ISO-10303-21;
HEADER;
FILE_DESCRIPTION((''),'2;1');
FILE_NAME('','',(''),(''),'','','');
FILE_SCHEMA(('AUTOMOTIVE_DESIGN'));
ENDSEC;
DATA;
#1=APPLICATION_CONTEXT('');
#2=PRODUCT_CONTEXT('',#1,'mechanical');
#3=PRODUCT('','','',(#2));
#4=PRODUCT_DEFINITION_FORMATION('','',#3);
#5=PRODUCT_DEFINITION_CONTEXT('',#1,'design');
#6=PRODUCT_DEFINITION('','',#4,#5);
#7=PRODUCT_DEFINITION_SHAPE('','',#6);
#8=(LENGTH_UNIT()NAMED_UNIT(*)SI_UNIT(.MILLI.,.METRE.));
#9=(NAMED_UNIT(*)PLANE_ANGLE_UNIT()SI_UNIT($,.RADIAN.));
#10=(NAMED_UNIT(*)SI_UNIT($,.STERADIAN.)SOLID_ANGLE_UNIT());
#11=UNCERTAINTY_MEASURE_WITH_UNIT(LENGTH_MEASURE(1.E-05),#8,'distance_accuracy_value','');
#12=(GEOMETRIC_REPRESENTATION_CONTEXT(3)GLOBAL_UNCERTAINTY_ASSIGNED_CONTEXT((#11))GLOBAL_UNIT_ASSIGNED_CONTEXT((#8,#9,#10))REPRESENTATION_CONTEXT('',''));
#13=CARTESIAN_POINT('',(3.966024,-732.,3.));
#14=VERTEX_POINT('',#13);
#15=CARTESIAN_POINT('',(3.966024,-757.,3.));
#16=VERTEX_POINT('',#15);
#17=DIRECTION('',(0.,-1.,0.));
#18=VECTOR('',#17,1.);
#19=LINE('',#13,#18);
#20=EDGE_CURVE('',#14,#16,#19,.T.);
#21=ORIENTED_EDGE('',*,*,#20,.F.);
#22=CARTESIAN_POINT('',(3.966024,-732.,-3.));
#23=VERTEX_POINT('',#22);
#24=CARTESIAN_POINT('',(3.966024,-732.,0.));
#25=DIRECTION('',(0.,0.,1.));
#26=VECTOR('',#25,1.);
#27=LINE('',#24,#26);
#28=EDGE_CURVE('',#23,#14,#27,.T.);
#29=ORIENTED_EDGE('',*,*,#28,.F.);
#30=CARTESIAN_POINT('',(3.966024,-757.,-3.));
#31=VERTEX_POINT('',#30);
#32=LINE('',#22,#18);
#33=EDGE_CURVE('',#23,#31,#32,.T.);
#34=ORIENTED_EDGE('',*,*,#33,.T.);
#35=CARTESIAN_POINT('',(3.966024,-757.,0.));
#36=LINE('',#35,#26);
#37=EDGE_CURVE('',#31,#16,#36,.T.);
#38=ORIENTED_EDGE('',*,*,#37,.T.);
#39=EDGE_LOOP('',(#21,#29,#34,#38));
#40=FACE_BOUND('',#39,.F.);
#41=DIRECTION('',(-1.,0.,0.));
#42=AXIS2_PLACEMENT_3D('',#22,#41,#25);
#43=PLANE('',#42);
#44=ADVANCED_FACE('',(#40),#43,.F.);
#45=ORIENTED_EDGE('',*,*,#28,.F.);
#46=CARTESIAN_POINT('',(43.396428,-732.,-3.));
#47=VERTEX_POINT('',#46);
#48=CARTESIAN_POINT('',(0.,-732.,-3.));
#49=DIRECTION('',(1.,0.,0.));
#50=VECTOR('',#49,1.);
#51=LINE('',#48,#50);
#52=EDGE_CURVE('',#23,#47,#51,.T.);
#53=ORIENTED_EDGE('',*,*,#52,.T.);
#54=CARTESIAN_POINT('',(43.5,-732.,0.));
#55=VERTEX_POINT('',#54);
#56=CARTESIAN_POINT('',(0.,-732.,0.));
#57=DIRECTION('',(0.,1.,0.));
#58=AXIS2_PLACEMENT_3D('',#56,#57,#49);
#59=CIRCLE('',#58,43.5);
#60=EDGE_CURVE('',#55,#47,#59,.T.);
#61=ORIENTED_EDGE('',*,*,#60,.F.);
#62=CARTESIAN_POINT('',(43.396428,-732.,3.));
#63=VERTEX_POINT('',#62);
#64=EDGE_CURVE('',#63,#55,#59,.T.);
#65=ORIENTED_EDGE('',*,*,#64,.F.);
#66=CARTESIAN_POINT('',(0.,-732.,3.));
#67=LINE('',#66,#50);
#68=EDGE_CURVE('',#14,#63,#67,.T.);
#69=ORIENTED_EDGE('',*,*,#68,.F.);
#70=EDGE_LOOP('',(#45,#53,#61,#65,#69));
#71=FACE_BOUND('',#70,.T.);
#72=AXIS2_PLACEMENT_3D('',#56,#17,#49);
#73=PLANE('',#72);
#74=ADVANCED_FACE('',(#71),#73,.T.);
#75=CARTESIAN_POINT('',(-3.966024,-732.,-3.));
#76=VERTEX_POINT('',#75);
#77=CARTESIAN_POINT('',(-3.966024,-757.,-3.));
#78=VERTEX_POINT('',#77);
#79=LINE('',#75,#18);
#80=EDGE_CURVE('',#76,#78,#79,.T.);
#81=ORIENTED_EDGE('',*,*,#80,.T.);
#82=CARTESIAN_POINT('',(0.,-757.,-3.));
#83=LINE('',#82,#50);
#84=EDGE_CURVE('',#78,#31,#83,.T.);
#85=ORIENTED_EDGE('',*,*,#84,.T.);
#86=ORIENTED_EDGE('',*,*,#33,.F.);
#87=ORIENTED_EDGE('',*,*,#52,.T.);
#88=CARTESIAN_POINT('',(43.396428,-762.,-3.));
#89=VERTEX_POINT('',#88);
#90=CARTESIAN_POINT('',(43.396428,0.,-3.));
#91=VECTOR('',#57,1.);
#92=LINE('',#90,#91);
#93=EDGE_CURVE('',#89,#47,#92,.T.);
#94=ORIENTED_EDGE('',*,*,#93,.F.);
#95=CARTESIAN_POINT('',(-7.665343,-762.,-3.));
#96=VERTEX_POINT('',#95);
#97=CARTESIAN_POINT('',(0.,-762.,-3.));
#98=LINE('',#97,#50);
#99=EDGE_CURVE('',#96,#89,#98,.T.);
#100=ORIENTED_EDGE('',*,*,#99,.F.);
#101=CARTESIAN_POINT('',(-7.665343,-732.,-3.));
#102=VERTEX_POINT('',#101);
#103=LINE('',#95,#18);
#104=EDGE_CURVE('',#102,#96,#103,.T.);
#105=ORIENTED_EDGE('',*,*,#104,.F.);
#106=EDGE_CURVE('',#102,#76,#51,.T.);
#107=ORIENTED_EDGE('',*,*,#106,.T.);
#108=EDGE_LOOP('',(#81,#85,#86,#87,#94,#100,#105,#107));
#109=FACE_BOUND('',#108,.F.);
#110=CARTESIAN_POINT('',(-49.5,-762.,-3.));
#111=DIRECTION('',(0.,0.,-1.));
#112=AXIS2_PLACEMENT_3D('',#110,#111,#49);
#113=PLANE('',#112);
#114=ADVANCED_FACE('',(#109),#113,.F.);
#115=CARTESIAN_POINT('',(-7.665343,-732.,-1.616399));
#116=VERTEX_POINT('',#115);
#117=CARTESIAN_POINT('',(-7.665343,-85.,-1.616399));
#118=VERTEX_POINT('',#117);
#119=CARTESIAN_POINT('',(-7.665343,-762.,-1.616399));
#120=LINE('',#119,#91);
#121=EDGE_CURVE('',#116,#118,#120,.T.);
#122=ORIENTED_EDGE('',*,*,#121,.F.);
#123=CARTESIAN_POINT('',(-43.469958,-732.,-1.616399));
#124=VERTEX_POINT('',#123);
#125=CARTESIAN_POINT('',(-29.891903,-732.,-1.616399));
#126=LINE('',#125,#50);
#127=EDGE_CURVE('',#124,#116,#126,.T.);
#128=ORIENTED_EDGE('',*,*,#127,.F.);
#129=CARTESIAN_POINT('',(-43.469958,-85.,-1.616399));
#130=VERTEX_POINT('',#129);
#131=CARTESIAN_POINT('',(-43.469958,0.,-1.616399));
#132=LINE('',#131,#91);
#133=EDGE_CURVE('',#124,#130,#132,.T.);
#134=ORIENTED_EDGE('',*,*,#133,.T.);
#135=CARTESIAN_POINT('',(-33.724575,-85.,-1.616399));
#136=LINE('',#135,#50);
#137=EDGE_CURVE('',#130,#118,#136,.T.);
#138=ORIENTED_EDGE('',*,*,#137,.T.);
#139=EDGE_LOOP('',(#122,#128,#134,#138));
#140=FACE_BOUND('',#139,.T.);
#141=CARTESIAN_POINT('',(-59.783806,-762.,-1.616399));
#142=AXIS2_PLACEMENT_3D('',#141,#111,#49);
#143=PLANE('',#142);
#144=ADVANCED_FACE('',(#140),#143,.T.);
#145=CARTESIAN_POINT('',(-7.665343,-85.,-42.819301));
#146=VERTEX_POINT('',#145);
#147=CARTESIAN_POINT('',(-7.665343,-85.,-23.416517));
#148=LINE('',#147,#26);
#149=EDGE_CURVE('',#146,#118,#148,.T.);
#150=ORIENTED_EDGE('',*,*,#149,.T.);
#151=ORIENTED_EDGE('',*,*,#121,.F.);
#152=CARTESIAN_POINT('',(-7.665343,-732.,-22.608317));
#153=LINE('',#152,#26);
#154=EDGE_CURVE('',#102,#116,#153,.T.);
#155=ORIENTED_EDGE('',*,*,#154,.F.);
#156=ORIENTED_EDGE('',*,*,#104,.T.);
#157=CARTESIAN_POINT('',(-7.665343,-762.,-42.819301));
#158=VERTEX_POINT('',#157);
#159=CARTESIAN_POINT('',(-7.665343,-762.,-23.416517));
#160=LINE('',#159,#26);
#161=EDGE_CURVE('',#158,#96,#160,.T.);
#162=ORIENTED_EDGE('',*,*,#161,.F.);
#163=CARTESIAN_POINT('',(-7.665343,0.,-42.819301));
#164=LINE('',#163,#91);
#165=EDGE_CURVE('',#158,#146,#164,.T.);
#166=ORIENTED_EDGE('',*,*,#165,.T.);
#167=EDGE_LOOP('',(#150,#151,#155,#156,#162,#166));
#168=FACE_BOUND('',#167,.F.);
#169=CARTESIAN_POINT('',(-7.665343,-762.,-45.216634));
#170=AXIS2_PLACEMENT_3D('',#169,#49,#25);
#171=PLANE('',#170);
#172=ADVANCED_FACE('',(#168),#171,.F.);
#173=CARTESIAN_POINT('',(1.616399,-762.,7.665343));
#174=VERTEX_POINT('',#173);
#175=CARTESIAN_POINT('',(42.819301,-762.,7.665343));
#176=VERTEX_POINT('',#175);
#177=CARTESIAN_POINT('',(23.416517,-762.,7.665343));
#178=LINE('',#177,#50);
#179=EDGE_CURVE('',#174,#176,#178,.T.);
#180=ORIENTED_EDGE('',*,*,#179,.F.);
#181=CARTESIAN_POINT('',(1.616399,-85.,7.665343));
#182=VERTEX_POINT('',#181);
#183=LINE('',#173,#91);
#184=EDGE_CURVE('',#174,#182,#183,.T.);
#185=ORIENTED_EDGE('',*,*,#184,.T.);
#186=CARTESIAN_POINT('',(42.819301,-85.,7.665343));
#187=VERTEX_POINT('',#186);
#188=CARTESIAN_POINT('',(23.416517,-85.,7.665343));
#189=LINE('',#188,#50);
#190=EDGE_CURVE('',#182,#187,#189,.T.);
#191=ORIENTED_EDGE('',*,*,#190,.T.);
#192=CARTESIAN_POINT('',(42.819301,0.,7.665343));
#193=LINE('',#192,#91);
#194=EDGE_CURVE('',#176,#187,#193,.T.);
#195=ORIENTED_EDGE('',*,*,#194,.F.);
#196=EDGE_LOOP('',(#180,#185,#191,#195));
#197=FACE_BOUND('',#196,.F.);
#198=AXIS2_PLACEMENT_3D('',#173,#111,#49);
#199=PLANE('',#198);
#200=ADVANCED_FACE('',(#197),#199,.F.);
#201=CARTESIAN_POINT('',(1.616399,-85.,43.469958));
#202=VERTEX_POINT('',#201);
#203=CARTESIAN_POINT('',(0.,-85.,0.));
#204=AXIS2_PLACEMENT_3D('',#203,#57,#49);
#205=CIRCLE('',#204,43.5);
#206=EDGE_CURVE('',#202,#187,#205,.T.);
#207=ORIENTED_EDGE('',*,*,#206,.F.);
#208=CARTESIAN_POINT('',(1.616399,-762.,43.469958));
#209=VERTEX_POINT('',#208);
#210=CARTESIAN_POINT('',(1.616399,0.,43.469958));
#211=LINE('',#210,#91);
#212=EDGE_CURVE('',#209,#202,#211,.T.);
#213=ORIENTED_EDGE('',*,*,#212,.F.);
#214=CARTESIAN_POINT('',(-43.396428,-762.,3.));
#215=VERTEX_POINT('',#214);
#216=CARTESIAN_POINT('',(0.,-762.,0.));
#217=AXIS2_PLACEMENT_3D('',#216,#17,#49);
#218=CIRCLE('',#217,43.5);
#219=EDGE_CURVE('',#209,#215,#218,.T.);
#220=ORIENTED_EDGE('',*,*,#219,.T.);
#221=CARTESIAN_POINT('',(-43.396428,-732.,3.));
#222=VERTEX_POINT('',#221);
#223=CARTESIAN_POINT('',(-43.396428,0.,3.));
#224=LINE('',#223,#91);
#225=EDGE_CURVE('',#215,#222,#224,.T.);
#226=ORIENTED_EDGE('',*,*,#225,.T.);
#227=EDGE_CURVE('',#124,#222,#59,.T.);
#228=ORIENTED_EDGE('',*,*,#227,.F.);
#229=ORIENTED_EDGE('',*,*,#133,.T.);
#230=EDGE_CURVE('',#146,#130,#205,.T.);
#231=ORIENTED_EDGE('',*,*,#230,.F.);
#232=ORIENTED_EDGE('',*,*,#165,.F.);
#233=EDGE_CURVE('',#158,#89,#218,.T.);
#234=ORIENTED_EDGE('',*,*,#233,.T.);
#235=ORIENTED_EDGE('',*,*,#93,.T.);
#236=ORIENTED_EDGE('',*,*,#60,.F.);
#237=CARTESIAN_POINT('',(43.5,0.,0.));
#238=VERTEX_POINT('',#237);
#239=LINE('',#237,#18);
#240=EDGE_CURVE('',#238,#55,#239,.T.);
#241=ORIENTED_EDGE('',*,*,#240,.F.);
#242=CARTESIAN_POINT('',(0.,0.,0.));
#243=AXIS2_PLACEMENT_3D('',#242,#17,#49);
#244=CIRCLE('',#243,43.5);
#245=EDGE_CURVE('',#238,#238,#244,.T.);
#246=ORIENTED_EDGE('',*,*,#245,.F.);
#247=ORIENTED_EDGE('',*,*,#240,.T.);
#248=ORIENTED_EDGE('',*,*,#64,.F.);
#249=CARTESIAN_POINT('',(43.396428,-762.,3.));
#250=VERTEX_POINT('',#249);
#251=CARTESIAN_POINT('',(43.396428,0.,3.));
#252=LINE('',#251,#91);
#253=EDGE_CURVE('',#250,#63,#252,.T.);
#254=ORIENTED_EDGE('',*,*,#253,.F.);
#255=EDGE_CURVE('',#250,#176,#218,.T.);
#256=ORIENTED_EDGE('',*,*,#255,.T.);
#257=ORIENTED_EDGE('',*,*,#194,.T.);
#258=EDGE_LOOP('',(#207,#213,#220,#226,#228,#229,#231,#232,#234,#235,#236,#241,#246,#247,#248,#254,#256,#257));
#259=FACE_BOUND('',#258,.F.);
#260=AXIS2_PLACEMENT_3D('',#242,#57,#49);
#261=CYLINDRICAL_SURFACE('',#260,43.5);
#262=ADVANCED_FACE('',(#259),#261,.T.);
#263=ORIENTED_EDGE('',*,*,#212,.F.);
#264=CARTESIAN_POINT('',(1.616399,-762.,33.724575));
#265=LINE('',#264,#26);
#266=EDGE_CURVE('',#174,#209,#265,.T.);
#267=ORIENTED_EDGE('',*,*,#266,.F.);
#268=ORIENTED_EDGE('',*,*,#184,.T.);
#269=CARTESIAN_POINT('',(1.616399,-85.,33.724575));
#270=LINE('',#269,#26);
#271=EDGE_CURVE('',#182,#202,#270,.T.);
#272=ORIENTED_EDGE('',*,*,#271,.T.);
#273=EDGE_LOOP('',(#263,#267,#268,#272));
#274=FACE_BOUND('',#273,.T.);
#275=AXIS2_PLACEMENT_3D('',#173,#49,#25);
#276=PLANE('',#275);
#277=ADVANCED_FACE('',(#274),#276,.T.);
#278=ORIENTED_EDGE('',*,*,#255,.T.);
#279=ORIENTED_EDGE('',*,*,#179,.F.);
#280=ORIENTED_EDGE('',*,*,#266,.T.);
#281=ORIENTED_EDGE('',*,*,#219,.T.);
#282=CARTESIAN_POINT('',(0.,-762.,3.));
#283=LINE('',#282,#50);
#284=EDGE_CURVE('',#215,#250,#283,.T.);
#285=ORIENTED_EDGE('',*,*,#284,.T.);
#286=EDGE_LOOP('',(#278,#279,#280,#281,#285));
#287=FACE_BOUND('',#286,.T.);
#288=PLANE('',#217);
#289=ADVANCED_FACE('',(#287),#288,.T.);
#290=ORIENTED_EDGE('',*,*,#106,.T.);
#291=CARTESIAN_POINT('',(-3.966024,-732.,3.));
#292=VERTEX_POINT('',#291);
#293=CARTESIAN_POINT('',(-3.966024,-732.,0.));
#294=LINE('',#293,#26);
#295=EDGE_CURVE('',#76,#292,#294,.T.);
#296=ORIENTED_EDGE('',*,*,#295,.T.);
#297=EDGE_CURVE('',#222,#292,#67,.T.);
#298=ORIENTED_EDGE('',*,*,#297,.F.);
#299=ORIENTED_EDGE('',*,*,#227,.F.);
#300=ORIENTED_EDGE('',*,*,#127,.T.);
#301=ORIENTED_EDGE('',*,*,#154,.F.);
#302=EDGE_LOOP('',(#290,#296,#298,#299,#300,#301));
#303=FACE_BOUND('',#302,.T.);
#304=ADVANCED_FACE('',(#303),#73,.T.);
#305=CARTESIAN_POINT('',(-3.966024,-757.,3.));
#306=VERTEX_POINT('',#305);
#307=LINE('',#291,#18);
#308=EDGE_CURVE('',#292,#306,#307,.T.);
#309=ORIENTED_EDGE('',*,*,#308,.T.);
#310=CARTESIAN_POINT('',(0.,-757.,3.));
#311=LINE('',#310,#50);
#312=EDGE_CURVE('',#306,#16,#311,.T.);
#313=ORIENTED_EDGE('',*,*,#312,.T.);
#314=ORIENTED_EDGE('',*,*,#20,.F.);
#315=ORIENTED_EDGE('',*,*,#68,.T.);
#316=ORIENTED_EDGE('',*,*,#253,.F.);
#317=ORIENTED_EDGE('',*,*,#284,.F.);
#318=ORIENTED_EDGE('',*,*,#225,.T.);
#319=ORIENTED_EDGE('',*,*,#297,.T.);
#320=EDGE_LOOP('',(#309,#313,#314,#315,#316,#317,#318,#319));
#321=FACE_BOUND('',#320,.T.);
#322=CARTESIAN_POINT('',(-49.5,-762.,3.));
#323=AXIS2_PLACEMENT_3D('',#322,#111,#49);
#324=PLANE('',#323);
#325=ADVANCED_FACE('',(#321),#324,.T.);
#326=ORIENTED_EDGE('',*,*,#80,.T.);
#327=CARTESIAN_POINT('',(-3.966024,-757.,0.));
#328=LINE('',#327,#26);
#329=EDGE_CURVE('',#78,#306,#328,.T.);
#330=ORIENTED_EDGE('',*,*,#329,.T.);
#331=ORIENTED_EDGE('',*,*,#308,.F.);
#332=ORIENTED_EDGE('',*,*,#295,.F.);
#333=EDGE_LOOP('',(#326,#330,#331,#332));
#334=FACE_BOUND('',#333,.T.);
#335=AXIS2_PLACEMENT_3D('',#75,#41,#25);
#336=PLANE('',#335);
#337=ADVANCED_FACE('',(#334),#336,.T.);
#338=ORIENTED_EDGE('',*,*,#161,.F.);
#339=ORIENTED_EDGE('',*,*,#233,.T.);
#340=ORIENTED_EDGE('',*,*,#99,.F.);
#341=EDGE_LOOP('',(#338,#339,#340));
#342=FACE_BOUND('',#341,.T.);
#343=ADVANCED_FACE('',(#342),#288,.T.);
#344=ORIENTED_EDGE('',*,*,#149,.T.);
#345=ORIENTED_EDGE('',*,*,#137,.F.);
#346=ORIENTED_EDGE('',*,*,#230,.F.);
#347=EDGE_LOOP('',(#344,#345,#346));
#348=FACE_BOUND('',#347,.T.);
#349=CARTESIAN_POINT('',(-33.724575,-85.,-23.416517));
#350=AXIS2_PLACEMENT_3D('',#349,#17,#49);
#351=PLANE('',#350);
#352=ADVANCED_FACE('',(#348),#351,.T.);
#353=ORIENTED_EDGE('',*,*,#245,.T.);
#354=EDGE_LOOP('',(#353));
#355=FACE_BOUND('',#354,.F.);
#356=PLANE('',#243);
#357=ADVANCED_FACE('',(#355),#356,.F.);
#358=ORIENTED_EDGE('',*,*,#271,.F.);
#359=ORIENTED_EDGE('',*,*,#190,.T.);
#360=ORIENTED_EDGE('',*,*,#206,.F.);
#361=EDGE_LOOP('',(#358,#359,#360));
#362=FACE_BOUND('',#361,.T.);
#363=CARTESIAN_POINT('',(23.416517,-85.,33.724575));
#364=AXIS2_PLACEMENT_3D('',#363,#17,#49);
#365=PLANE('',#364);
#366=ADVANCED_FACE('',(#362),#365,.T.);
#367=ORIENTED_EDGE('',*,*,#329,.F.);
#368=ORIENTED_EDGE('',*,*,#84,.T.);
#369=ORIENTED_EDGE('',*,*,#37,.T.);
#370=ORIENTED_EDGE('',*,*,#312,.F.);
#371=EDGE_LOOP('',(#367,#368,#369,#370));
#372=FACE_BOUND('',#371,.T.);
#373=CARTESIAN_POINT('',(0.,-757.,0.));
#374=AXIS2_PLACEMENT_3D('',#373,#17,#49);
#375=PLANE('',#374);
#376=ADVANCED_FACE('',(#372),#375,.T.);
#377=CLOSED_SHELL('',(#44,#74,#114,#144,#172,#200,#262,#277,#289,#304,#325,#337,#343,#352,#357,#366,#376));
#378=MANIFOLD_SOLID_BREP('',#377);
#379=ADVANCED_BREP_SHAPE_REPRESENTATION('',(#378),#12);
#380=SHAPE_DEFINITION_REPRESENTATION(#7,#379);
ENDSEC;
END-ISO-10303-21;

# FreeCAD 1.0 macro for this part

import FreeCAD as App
import Part
import Sketcher
Q = App.Units.Quantity


def add_polygon(sketch, points):
    """Adds a closed chain of lines whose ends are joined by coincident constraints."""
    first, n = sketch.GeometryCount, len(points)
    for a, b in zip(points, points[1:] + points[:1]):
        sketch.addGeometry(Part.LineSegment(App.Vector(*a, 0), App.Vector(*b, 0)), False)
    for i in range(n):
        sketch.addConstraint(Sketcher.Constraint("Coincident", first + i, 2, first + (i + 1) % n, 1))

doc = App.newDocument("Part")
body = doc.addObject("PartDesign::Body", "Body")

# Sketch on XZ plane
sketch1 = body.newObject("Sketcher::SketchObject", "Sketch")
sketch1.AttachmentSupport = (doc.getObject("XZ_Plane"), [""])
sketch1.MapMode = "FlatFace"
sketch1.addGeometry(Part.Circle(App.Vector(0, 0, 0), App.Vector(0, 0, 1), 44), False)
sketch1.addConstraint(Sketcher.Constraint("Coincident", 0, 3, -1, 1))
sketch1.addConstraint(Sketcher.Constraint("Diameter", 0, Q("87 mm")))
pad1 = body.newObject("PartDesign::Pad", "Pad")
pad1.Profile = sketch1
pad1.Length = 762

# Sketch on XZ plane
sketch2 = body.newObject("Sketcher::SketchObject", "Sketch001")
sketch2.AttachmentSupport = (doc.getObject("XZ_Plane"), [""])
sketch2.MapMode = "FlatFace"
sketch2.AttachmentOffset = App.Placement(App.Vector(0, 0, 762), App.Rotation())
add_polygon(sketch2, [(-50, 3), (-50, -3), (50, -3), (50, 3)])  # lines 0-3
sketch2.addConstraint(Sketcher.Constraint("Vertical", 0))
sketch2.addConstraint(Sketcher.Constraint("Horizontal", 1))
sketch2.addConstraint(Sketcher.Constraint("Vertical", 2))
sketch2.addConstraint(Sketcher.Constraint("Horizontal", 3))
sketch2.addConstraint(Sketcher.Constraint("Symmetric", 0, 2, 2, 2, -1, 1))
sketch2.addConstraint(Sketcher.Constraint("DistanceX", 1, 1, 1, 2, Q("99 mm")))
sketch2.addConstraint(Sketcher.Constraint("DistanceY", 0, 2, 0, 1, Q("6 mm")))
pocket1 = body.newObject("PartDesign::Pocket", "Pocket")
pocket1.Profile = sketch2
pocket1.Length = 30

# Sketch on XZ plane
sketch3 = body.newObject("Sketcher::SketchObject", "Sketch002")
sketch3.AttachmentSupport = (doc.getObject("XZ_Plane"), [""])
sketch3.MapMode = "FlatFace"
sketch3.AttachmentOffset = App.Placement(App.Vector(0, 0, 732), App.Rotation())
add_polygon(sketch3, [(-4, 3), (-4, -3), (4, -3), (4, 3)])  # lines 0-3
sketch3.addConstraint(Sketcher.Constraint("Vertical", 0))
sketch3.addConstraint(Sketcher.Constraint("Horizontal", 1))
sketch3.addConstraint(Sketcher.Constraint("Vertical", 2))
sketch3.addConstraint(Sketcher.Constraint("Horizontal", 3))
sketch3.addConstraint(Sketcher.Constraint("Symmetric", 0, 2, 2, 2, -1, 1))
sketch3.addConstraint(Sketcher.Constraint("DistanceY", 0, 2, 0, 1, Q("6 mm")))
sketch3.addConstraint(Sketcher.Constraint("DistanceX", 1, 1, 1, 2, Q("7.932048 mm")))
pad2 = body.newObject("PartDesign::Pad", "Pad001")
pad2.Profile = sketch3
pad2.Length = 25

# Sketch on XZ plane
sketch4 = body.newObject("Sketcher::SketchObject", "Sketch003")
sketch4.AttachmentSupport = (doc.getObject("XZ_Plane"), [""])
sketch4.MapMode = "FlatFace"
sketch4.AttachmentOffset = App.Placement(App.Vector(0, 0, 762), App.Rotation())
add_polygon(sketch4, [(2, 60), (2, 8), (45, 8), (45, 60)])  # lines 0-3
add_polygon(sketch4, [(-60, -2), (-60, -45), (-8, -45), (-8, -2)])  # lines 4-7
sketch4.addConstraint(Sketcher.Constraint("Vertical", 0))
sketch4.addConstraint(Sketcher.Constraint("Horizontal", 1))
sketch4.addConstraint(Sketcher.Constraint("Vertical", 2))
sketch4.addConstraint(Sketcher.Constraint("Horizontal", 3))
sketch4.addConstraint(Sketcher.Constraint("Vertical", 4))
sketch4.addConstraint(Sketcher.Constraint("Horizontal", 5))
sketch4.addConstraint(Sketcher.Constraint("Vertical", 6))
sketch4.addConstraint(Sketcher.Constraint("Horizontal", 7))
sketch4.addConstraint(Sketcher.Constraint("Equal", 7, 0))
sketch4.addConstraint(Sketcher.Constraint("Equal", 3, 4))
sketch4.addConstraint(Sketcher.Constraint("DistanceX", -1, 1, 0, 2, Q("1.616399 mm")))
sketch4.addConstraint(Sketcher.Constraint("DistanceY", 6, 2, -1, 1, Q("1.616399 mm")))
sketch4.addConstraint(Sketcher.Constraint("DistanceX", 1, 1, 1, 2, Q("43.600235 mm")))
sketch4.addConstraint(Sketcher.Constraint("DistanceX", 5, 1, 5, 2, Q("52.118463 mm")))
sketch4.addConstraint(Sketcher.Constraint("DistanceX", 4, 2, 1, 2, Q("105.000441 mm")))
sketch4.addConstraint(Sketcher.Constraint("DistanceY", 4, 2, 3, 2, Q("105.000441 mm")))
pocket2 = body.newObject("PartDesign::Pocket", "Pocket001")
pocket2.Profile = sketch4
pocket2.Length = 677

doc.recompute()
